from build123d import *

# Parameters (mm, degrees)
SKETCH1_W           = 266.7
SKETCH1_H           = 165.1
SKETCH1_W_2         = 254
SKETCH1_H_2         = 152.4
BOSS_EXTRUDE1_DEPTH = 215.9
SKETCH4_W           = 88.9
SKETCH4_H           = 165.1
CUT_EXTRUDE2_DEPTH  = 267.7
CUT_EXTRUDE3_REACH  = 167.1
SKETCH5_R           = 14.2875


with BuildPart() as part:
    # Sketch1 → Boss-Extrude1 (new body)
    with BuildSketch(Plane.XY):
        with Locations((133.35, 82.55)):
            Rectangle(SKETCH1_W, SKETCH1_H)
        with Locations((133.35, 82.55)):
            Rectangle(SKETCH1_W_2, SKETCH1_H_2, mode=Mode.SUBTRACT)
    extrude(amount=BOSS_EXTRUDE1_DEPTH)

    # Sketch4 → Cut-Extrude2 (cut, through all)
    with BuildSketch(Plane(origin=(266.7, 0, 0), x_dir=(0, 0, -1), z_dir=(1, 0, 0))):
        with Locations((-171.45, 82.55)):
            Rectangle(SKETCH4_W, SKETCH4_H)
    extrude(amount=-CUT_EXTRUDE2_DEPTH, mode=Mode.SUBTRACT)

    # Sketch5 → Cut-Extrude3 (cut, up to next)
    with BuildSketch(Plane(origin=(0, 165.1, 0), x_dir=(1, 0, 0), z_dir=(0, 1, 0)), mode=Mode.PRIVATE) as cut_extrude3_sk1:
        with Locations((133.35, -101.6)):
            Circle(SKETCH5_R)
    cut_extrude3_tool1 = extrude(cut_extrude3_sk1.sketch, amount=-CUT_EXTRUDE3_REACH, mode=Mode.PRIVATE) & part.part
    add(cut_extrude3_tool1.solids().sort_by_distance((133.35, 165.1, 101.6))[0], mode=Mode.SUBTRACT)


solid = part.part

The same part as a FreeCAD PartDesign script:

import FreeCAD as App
import Part
import Sketcher

V = App.Vector
Q = App.Units.Quantity

doc = App.newDocument("Part")
body = doc.addObject("PartDesign::Body", "Body")

# Sketch on XY plane
sketch1 = body.newObject("Sketcher::SketchObject", "Sketch")
sketch1.AttachmentSupport = (doc.getObject("XY_Plane"), [""])
sketch1.MapMode = "FlatFace"
sketch1.addGeometry(Part.LineSegment(V(0, 165.1, 0), V(0, 0, 0)), False)
sketch1.addGeometry(Part.LineSegment(V(0, 0, 0), V(266.7, 0, 0)), False)
sketch1.addGeometry(Part.LineSegment(V(266.7, 0, 0), V(266.7, 165.1, 0)), False)
sketch1.addGeometry(Part.LineSegment(V(266.7, 165.1, 0), V(0, 165.1, 0)), False)
sketch1.addGeometry(Part.LineSegment(V(260.35, 6.35, 0), V(6.35, 6.35, 0)), False)
sketch1.addGeometry(Part.LineSegment(V(6.35, 6.35, 0), V(6.35, 158.75, 0)), False)
sketch1.addGeometry(Part.LineSegment(V(6.35, 158.75, 0), V(260.35, 158.75, 0)), False)
sketch1.addGeometry(Part.LineSegment(V(260.35, 158.75, 0), V(260.35, 6.35, 0)), False)
sketch1.addConstraint(Sketcher.Constraint("Coincident", 0, 2, 1, 1))
sketch1.addConstraint(Sketcher.Constraint("Coincident", 1, 2, 2, 1))
sketch1.addConstraint(Sketcher.Constraint("Coincident", 2, 2, 3, 1))
sketch1.addConstraint(Sketcher.Constraint("Coincident", 3, 2, 0, 1))
sketch1.addConstraint(Sketcher.Constraint("Coincident", 4, 2, 5, 1))
sketch1.addConstraint(Sketcher.Constraint("Coincident", 5, 2, 6, 1))
sketch1.addConstraint(Sketcher.Constraint("Coincident", 6, 2, 7, 1))
sketch1.addConstraint(Sketcher.Constraint("Coincident", 7, 2, 4, 1))
sketch1.addConstraint(Sketcher.Constraint("Vertical", 0))
sketch1.addConstraint(Sketcher.Constraint("Horizontal", 1))
sketch1.addConstraint(Sketcher.Constraint("Vertical", 2))
sketch1.addConstraint(Sketcher.Constraint("Horizontal", 3))
sketch1.addConstraint(Sketcher.Constraint("Horizontal", 4))
sketch1.addConstraint(Sketcher.Constraint("Vertical", 5))
sketch1.addConstraint(Sketcher.Constraint("Horizontal", 6))
sketch1.addConstraint(Sketcher.Constraint("Vertical", 7))
sketch1.addConstraint(Sketcher.Constraint("Coincident", 0, 2, -1, 1))
sketch1.addConstraint(Sketcher.Constraint("DistanceX", 4, 2, 4, 1, Q("10 in")))
sketch1.addConstraint(Sketcher.Constraint("DistanceY", 5, 1, 5, 2, Q("6 in")))
sketch1.addConstraint(Sketcher.Constraint("DistanceX", 1, 1, 1, 2, Q("10.5 in")))
sketch1.addConstraint(Sketcher.Constraint("DistanceY", 0, 2, 0, 1, Q("6.5 in")))
sketch1.addConstraint(Sketcher.Constraint("DistanceX", -1, 1, 4, 2, Q("0.25 in")))
sketch1.addConstraint(Sketcher.Constraint("DistanceY", -1, 1, 4, 2, Q("0.25 in")))
pad1 = body.newObject("PartDesign::Pad", "Pad")
pad1.Profile = sketch1
pad1.Length = Q("8.5 in")

# Sketch on YZ plane
sketch2 = body.newObject("Sketcher::SketchObject", "Sketch001")
sketch2.AttachmentSupport = (doc.getObject("YZ_Plane"), [""])
sketch2.MapMode = "FlatFace"
sketch2.AttachmentOffset = App.Placement(V(0, 0, 10.5 * 25.4), App.Rotation())
sketch2.addGeometry(Part.LineSegment(V(165.1, 215.9, 0), V(0, 215.9, 0)), False)
sketch2.addGeometry(Part.LineSegment(V(0, 215.9, 0), V(0, 127, 0)), False)
sketch2.addGeometry(Part.LineSegment(V(0, 127, 0), V(165.1, 127, 0)), False)
sketch2.addGeometry(Part.LineSegment(V(165.1, 127, 0), V(165.1, 215.9, 0)), False)
sketch2.addConstraint(Sketcher.Constraint("Coincident", 0, 2, 1, 1))
sketch2.addConstraint(Sketcher.Constraint("Coincident", 1, 2, 2, 1))
sketch2.addConstraint(Sketcher.Constraint("Coincident", 2, 2, 3, 1))
sketch2.addConstraint(Sketcher.Constraint("Coincident", 3, 2, 0, 1))
sketch2.addConstraint(Sketcher.Constraint("Horizontal", 0))
sketch2.addConstraint(Sketcher.Constraint("Vertical", 1))
sketch2.addConstraint(Sketcher.Constraint("Horizontal", 2))
sketch2.addConstraint(Sketcher.Constraint("Vertical", 3))
sketch2.addConstraint(Sketcher.Constraint("PointOnObject", 0, 2, -2))
sketch2.addConstraint(Sketcher.Constraint("DistanceX", 0, 2, 0, 1, Q("6.5 in")))
sketch2.addConstraint(Sketcher.Constraint("DistanceY", 1, 2, 1, 1, Q("3.5 in")))
sketch2.addConstraint(Sketcher.Constraint("DistanceY", -1, 1, 1, 2, Q("5 in")))
pocket1 = body.newObject("PartDesign::Pocket", "Pocket")
pocket1.Profile = sketch2
pocket1.Type = "ThroughAll"

# Sketch on XZ plane
sketch3 = body.newObject("Sketcher::SketchObject", "Sketch002")
sketch3.AttachmentSupport = (doc.getObject("XZ_Plane"), [""])
sketch3.MapMode = "FlatFace"
sketch3.AttachmentOffset = App.Placement(V(0, 0, -6.5 * 25.4), App.Rotation())
sketch3.addGeometry(Part.Circle(V(133.35, 101.6, 0), V(0, 0, 1), 14.2875), False)
sketch3.addConstraint(Sketcher.Constraint("Diameter", 0, Q("1.125 in")))
sketch3.addConstraint(Sketcher.Constraint("DistanceY", -1, 1, 0, 3, Q("4 in")))
sketch3.addConstraint(Sketcher.Constraint("DistanceX", -1, 1, 0, 3, Q("5.25 in")))
pocket2 = body.newObject("PartDesign::Pocket", "Pocket001")
pocket2.Profile = sketch3
pocket2.Type = "UpToFirst"
pocket2.Reversed = True

doc.recompute()
